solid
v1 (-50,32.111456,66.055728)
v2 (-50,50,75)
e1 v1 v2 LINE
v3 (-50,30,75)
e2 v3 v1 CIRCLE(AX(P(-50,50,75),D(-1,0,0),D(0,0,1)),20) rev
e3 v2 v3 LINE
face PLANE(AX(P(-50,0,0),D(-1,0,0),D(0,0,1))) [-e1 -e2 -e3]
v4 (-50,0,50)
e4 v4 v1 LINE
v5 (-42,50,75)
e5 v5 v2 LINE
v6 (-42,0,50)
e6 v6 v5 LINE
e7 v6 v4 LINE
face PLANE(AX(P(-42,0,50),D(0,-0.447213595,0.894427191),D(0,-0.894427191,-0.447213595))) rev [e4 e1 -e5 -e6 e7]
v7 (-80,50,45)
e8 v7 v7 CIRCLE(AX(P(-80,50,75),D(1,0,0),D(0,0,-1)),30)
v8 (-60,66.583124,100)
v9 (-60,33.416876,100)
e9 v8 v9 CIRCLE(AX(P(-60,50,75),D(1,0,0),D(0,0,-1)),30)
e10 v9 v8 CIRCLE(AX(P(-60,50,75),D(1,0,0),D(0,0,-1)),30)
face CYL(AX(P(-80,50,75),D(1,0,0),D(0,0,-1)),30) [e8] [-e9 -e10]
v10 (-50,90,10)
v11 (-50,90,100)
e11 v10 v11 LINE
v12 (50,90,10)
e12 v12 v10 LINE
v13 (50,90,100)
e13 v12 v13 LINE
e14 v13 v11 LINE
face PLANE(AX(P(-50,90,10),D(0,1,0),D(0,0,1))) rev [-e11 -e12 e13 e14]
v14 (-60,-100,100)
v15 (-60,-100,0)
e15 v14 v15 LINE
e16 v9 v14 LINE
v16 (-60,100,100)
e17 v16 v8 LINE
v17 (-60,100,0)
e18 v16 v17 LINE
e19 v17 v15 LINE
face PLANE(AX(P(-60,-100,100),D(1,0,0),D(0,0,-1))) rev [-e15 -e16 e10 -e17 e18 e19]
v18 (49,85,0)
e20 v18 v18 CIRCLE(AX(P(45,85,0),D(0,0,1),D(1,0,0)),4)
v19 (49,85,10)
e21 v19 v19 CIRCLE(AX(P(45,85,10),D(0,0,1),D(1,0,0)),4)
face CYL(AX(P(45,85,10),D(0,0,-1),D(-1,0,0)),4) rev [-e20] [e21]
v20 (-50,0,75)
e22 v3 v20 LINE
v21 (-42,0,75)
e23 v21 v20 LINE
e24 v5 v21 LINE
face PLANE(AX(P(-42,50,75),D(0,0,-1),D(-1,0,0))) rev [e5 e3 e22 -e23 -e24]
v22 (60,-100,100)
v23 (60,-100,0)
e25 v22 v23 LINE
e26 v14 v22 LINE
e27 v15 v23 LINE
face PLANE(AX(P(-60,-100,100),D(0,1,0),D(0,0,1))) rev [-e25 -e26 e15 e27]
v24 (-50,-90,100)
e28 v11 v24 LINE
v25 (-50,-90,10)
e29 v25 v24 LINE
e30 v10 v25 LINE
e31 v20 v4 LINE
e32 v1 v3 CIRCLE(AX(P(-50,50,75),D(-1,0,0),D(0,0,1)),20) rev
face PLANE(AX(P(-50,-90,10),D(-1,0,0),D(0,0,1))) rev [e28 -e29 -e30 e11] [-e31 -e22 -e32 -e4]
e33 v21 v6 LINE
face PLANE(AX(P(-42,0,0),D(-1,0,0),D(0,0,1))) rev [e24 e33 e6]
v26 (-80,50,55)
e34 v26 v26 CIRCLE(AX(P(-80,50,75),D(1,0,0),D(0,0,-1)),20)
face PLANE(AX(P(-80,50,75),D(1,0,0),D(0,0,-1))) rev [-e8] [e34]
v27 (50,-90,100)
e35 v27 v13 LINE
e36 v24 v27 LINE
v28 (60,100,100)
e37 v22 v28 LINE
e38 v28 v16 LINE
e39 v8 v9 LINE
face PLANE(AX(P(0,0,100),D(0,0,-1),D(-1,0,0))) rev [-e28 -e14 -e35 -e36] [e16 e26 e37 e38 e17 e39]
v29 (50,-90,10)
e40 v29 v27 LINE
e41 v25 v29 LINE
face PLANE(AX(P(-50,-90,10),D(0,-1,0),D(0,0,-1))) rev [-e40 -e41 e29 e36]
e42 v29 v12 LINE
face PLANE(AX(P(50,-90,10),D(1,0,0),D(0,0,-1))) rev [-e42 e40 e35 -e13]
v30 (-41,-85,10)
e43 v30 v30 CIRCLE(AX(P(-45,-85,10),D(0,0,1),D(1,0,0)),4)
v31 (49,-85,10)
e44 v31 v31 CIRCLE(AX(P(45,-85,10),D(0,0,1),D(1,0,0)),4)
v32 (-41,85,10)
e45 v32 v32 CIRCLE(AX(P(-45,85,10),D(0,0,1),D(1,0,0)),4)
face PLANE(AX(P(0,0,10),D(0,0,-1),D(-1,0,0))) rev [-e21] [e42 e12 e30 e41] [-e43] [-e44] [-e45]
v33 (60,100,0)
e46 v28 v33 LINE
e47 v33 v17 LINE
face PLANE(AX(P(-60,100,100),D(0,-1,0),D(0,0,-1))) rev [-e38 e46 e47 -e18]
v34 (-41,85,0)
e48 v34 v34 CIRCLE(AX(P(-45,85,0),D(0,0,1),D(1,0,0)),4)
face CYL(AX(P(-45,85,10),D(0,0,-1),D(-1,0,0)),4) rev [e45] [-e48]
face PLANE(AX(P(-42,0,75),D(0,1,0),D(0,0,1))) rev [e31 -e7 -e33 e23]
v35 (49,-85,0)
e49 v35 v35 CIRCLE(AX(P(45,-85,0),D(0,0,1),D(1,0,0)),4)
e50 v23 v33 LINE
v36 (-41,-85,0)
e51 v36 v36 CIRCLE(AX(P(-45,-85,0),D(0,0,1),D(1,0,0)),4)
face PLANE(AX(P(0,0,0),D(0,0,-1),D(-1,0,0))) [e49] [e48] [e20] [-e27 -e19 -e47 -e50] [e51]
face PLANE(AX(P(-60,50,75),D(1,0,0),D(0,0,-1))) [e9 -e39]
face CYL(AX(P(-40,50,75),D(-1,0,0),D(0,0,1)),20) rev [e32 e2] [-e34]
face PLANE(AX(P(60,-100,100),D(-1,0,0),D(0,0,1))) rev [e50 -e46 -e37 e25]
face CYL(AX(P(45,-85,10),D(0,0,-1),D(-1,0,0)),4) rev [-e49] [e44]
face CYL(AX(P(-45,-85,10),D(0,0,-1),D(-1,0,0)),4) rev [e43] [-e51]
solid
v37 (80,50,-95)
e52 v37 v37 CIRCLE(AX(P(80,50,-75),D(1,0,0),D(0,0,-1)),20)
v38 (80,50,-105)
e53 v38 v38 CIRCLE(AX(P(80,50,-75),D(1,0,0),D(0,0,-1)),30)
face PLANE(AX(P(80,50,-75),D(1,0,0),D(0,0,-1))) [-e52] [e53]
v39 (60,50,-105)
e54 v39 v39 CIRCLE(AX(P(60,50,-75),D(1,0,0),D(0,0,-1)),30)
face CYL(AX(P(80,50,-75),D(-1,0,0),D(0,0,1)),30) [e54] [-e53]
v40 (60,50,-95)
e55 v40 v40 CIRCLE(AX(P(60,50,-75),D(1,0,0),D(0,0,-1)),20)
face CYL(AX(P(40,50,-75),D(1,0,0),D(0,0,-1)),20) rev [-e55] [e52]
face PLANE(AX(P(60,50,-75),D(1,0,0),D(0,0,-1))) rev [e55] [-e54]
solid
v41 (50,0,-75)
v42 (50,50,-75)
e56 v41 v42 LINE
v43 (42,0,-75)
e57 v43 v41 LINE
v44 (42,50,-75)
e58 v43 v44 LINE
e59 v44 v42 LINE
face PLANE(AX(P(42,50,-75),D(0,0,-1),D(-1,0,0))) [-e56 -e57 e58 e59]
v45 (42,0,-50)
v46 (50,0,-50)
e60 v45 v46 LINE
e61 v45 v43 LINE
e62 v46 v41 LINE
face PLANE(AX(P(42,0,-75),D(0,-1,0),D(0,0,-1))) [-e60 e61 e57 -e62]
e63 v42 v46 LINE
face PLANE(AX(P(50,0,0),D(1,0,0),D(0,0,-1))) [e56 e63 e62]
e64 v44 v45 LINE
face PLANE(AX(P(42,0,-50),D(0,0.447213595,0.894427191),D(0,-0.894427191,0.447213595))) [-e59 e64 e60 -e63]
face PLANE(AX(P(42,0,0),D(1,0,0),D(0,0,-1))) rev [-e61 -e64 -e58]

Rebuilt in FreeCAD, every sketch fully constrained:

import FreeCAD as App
import Part
import Sketcher
Q = App.Units.Quantity


def add_polygon(sketch, points):
    """Adds a closed chain of lines whose ends are joined by coincident constraints."""
    first, n = sketch.GeometryCount, len(points)
    for a, b in zip(points, points[1:] + points[:1]):
        sketch.addGeometry(Part.LineSegment(App.Vector(*a, 0), App.Vector(*b, 0)), False)
    for i in range(n):
        sketch.addConstraint(Sketcher.Constraint("Coincident", first + i, 2, first + (i + 1) % n, 1))

doc = App.newDocument("Part")
body = doc.addObject("PartDesign::Body", "Body")

# Sketch on XY plane
sketch1 = doc.addObject("Sketcher::SketchObject", "Sketch")
body.addObject(sketch1)
sketch1.AttachmentSupport = (doc.XY_Plane, [""])
sketch1.MapMode = "FlatFace"
add_polygon(sketch1, [(-60, 100), (-60, -100), (60, -100), (60, 100)])  # lines 0-3
sketch1.addConstraint(Sketcher.Constraint("Vertical", 0))
sketch1.addConstraint(Sketcher.Constraint("Horizontal", 1))
sketch1.addConstraint(Sketcher.Constraint("Vertical", 2))
sketch1.addConstraint(Sketcher.Constraint("Horizontal", 3))
sketch1.addConstraint(Sketcher.Constraint("Symmetric", 0, 2, 2, 2, -1, 1))
sketch1.addConstraint(Sketcher.Constraint("DistanceX", 1, 1, 1, 2, Q("120 mm")))
sketch1.addConstraint(Sketcher.Constraint("DistanceY", 0, 2, 0, 1, Q("200 mm")))
pad1 = doc.addObject("PartDesign::Pad", "Pad")
body.addObject(pad1)
pad1.Profile = sketch1
pad1.Length = 100

# Sketch on XY plane
sketch2 = doc.addObject("Sketcher::SketchObject", "Sketch001")
body.addObject(sketch2)
sketch2.AttachmentSupport = (doc.XY_Plane, [""])
sketch2.MapMode = "FlatFace"
sketch2.AttachmentOffset = App.Placement(App.Vector(0, 0, 100), App.Rotation())
add_polygon(sketch2, [(-50, 90), (-50, -90), (50, -90), (50, 90)])  # lines 0-3
sketch2.addConstraint(Sketcher.Constraint("Vertical", 0))
sketch2.addConstraint(Sketcher.Constraint("Horizontal", 1))
sketch2.addConstraint(Sketcher.Constraint("Vertical", 2))
sketch2.addConstraint(Sketcher.Constraint("Horizontal", 3))
sketch2.addConstraint(Sketcher.Constraint("Symmetric", 0, 2, 2, 2, -1, 1))
sketch2.addConstraint(Sketcher.Constraint("DistanceX", 1, 1, 1, 2, Q("100 mm")))
sketch2.addConstraint(Sketcher.Constraint("DistanceY", 0, 2, 0, 1, Q("180 mm")))
pocket1 = doc.addObject("PartDesign::Pocket", "Pocket")
body.addObject(pocket1)
pocket1.Profile = sketch2
pocket1.Length = 90

# Sketch on YZ plane
sketch3 = doc.addObject("Sketcher::SketchObject", "Sketch002")
body.addObject(sketch3)
sketch3.AttachmentSupport = (doc.YZ_Plane, [""])
sketch3.MapMode = "FlatFace"
sketch3.AttachmentOffset = App.Placement(App.Vector(0, 0, -60), App.Rotation())
sketch3.addGeometry(Part.Circle(App.Vector(50, 75, 0), App.Vector(0, 0, 1), 30), False)
sketch3.addConstraint(Sketcher.Constraint("Diameter", 0, Q("60 mm")))
sketch3.addConstraint(Sketcher.Constraint("DistanceX", -1, 1, 0, 3, Q("50 mm")))
sketch3.addConstraint(Sketcher.Constraint("DistanceY", -1, 1, 0, 3, Q("75 mm")))
pad2 = doc.addObject("PartDesign::Pad", "Pad001")
body.addObject(pad2)
pad2.Profile = sketch3
pad2.Length = 20
pad2.Reversed = True

# Sketch on YZ plane
sketch4 = doc.addObject("Sketcher::SketchObject", "Sketch003")
body.addObject(sketch4)
sketch4.AttachmentSupport = (doc.YZ_Plane, [""])
sketch4.MapMode = "FlatFace"
sketch4.AttachmentOffset = App.Placement(App.Vector(0, 0, -80), App.Rotation())
sketch4.addGeometry(Part.Circle(App.Vector(50, 75, 0), App.Vector(0, 0, 1), 20), False)
sketch4.addConstraint(Sketcher.Constraint("Diameter", 0, Q("40 mm")))
sketch4.addConstraint(Sketcher.Constraint("DistanceX", -1, 1, 0, 3, Q("50 mm")))
sketch4.addConstraint(Sketcher.Constraint("DistanceY", -1, 1, 0, 3, Q("75 mm")))
pocket2 = doc.addObject("PartDesign::Pocket", "Pocket001")
body.addObject(pocket2)
pocket2.Profile = sketch4
pocket2.Length = 40
pocket2.Reversed = True

# Sketch on YZ plane
sketch5 = doc.addObject("Sketcher::SketchObject", "Sketch004")
body.addObject(sketch5)
sketch5.AttachmentSupport = (doc.YZ_Plane, [""])
sketch5.MapMode = "FlatFace"
sketch5.AttachmentOffset = App.Placement(App.Vector(0, 0, -50), App.Rotation())
add_polygon(sketch5, [(50, 75), (0, 75), (0, 50)])  # lines 0-2
sketch5.addConstraint(Sketcher.Constraint("Horizontal", 0))
sketch5.addConstraint(Sketcher.Constraint("Vertical", 1))
sketch5.addConstraint(Sketcher.Constraint("PointOnObject", 0, 2, -2))
sketch5.addConstraint(Sketcher.Constraint("DistanceX", 0, 2, 0, 1, Q("50 mm")))
sketch5.addConstraint(Sketcher.Constraint("DistanceY", 1, 2, 1, 1, Q("25 mm")))
sketch5.addConstraint(Sketcher.Constraint("DistanceY", -1, 1, 0, 2, Q("75 mm")))
pad3 = doc.addObject("PartDesign::Pad", "Pad002")
body.addObject(pad3)
pad3.Profile = sketch5
pad3.Length = 8

# Sketch on XY plane
sketch6 = doc.addObject("Sketcher::SketchObject", "Sketch005")
body.addObject(sketch6)
sketch6.AttachmentSupport = (doc.XY_Plane, [""])
sketch6.MapMode = "FlatFace"
sketch6.addGeometry(Part.Circle(App.Vector(45, 85, 0), App.Vector(0, 0, 1), 4), False)
sketch6.addGeometry(Part.Circle(App.Vector(-45, 85, 0), App.Vector(0, 0, 1), 4), False)
sketch6.addGeometry(Part.Circle(App.Vector(45, -85, 0), App.Vector(0, 0, 1), 4), False)
sketch6.addGeometry(Part.Circle(App.Vector(-45, -85, 0), App.Vector(0, 0, 1), 4), False)
sketch6.addConstraint(Sketcher.Constraint("Equal", 0, 1))
sketch6.addConstraint(Sketcher.Constraint("Equal", 1, 2))
sketch6.addConstraint(Sketcher.Constraint("Equal", 2, 3))
sketch6.addConstraint(Sketcher.Constraint("Symmetric", 1, 3, 2, 3, -1, 1))
sketch6.addConstraint(Sketcher.Constraint("Symmetric", 0, 3, 3, 3, -1, 1))
sketch6.addConstraint(Sketcher.Constraint("Symmetric", 0, 3, 1, 3, -2))
sketch6.addConstraint(Sketcher.Constraint("Diameter", 0, Q("8 mm")))
sketch6.addConstraint(Sketcher.Constraint("DistanceX", -1, 1, 0, 3, Q("45 mm")))
sketch6.addConstraint(Sketcher.Constraint("DistanceY", -1, 1, 0, 3, Q("85 mm")))
pocket3 = doc.addObject("PartDesign::Pocket", "Pocket002")
body.addObject(pocket3)
pocket3.Profile = sketch6
pocket3.Length = 10
pocket3.Reversed = True
body2 = doc.addObject("PartDesign::Body", "Body001")

# Sketch on YZ plane
sketch7 = doc.addObject("Sketcher::SketchObject", "Sketch006")
body2.addObject(sketch7)
sketch7.AttachmentSupport = (doc.getObject("YZ_Plane001"), [""])
sketch7.MapMode = "FlatFace"
sketch7.AttachmentOffset = App.Placement(App.Vector(0, 0, 60), App.Rotation())
sketch7.addGeometry(Part.Circle(App.Vector(50, -75, 0), App.Vector(0, 0, 1), 30), False)
sketch7.addConstraint(Sketcher.Constraint("Diameter", 0, Q("60 mm")))
sketch7.addConstraint(Sketcher.Constraint("DistanceX", -1, 1, 0, 3, Q("50 mm")))
sketch7.addConstraint(Sketcher.Constraint("DistanceY", 0, 3, -1, 1, Q("75 mm")))
pad4 = doc.addObject("PartDesign::Pad", "Pad003")
body2.addObject(pad4)
pad4.Profile = sketch7
pad4.Length = 20

# Sketch on YZ plane
sketch8 = doc.addObject("Sketcher::SketchObject", "Sketch007")
body2.addObject(sketch8)
sketch8.AttachmentSupport = (doc.getObject("YZ_Plane001"), [""])
sketch8.MapMode = "FlatFace"
sketch8.AttachmentOffset = App.Placement(App.Vector(0, 0, 80), App.Rotation())
sketch8.addGeometry(Part.Circle(App.Vector(50, -75, 0), App.Vector(0, 0, 1), 20), False)
sketch8.addConstraint(Sketcher.Constraint("Diameter", 0, Q("40 mm")))
sketch8.addConstraint(Sketcher.Constraint("DistanceX", -1, 1, 0, 3, Q("50 mm")))
sketch8.addConstraint(Sketcher.Constraint("DistanceY", 0, 3, -1, 1, Q("75 mm")))
pocket4 = doc.addObject("PartDesign::Pocket", "Pocket003")
body2.addObject(pocket4)
pocket4.Profile = sketch8
pocket4.Length = 40
body3 = doc.addObject("PartDesign::Body", "Body002")

# Sketch on YZ plane
sketch9 = doc.addObject("Sketcher::SketchObject", "Sketch008")
body3.addObject(sketch9)
sketch9.AttachmentSupport = (doc.getObject("YZ_Plane002"), [""])
sketch9.MapMode = "FlatFace"
sketch9.AttachmentOffset = App.Placement(App.Vector(0, 0, 50), App.Rotation())
add_polygon(sketch9, [(0, -75), (50, -75), (0, -50)])  # lines 0-2
sketch9.addConstraint(Sketcher.Constraint("Horizontal", 0))
sketch9.addConstraint(Sketcher.Constraint("Vertical", 2))
sketch9.addConstraint(Sketcher.Constraint("PointOnObject", 1, 2, -2))
sketch9.addConstraint(Sketcher.Constraint("DistanceX", 0, 1, 0, 2, Q("50 mm")))
sketch9.addConstraint(Sketcher.Constraint("DistanceY", 2, 2, 2, 1, Q("25 mm")))
sketch9.addConstraint(Sketcher.Constraint("DistanceY", 0, 2, -1, 1, Q("75 mm")))
pad5 = doc.addObject("PartDesign::Pad", "Pad004")
body3.addObject(pad5)
pad5.Profile = sketch9
pad5.Length = 8
pad5.Reversed = True

doc.recompute()
